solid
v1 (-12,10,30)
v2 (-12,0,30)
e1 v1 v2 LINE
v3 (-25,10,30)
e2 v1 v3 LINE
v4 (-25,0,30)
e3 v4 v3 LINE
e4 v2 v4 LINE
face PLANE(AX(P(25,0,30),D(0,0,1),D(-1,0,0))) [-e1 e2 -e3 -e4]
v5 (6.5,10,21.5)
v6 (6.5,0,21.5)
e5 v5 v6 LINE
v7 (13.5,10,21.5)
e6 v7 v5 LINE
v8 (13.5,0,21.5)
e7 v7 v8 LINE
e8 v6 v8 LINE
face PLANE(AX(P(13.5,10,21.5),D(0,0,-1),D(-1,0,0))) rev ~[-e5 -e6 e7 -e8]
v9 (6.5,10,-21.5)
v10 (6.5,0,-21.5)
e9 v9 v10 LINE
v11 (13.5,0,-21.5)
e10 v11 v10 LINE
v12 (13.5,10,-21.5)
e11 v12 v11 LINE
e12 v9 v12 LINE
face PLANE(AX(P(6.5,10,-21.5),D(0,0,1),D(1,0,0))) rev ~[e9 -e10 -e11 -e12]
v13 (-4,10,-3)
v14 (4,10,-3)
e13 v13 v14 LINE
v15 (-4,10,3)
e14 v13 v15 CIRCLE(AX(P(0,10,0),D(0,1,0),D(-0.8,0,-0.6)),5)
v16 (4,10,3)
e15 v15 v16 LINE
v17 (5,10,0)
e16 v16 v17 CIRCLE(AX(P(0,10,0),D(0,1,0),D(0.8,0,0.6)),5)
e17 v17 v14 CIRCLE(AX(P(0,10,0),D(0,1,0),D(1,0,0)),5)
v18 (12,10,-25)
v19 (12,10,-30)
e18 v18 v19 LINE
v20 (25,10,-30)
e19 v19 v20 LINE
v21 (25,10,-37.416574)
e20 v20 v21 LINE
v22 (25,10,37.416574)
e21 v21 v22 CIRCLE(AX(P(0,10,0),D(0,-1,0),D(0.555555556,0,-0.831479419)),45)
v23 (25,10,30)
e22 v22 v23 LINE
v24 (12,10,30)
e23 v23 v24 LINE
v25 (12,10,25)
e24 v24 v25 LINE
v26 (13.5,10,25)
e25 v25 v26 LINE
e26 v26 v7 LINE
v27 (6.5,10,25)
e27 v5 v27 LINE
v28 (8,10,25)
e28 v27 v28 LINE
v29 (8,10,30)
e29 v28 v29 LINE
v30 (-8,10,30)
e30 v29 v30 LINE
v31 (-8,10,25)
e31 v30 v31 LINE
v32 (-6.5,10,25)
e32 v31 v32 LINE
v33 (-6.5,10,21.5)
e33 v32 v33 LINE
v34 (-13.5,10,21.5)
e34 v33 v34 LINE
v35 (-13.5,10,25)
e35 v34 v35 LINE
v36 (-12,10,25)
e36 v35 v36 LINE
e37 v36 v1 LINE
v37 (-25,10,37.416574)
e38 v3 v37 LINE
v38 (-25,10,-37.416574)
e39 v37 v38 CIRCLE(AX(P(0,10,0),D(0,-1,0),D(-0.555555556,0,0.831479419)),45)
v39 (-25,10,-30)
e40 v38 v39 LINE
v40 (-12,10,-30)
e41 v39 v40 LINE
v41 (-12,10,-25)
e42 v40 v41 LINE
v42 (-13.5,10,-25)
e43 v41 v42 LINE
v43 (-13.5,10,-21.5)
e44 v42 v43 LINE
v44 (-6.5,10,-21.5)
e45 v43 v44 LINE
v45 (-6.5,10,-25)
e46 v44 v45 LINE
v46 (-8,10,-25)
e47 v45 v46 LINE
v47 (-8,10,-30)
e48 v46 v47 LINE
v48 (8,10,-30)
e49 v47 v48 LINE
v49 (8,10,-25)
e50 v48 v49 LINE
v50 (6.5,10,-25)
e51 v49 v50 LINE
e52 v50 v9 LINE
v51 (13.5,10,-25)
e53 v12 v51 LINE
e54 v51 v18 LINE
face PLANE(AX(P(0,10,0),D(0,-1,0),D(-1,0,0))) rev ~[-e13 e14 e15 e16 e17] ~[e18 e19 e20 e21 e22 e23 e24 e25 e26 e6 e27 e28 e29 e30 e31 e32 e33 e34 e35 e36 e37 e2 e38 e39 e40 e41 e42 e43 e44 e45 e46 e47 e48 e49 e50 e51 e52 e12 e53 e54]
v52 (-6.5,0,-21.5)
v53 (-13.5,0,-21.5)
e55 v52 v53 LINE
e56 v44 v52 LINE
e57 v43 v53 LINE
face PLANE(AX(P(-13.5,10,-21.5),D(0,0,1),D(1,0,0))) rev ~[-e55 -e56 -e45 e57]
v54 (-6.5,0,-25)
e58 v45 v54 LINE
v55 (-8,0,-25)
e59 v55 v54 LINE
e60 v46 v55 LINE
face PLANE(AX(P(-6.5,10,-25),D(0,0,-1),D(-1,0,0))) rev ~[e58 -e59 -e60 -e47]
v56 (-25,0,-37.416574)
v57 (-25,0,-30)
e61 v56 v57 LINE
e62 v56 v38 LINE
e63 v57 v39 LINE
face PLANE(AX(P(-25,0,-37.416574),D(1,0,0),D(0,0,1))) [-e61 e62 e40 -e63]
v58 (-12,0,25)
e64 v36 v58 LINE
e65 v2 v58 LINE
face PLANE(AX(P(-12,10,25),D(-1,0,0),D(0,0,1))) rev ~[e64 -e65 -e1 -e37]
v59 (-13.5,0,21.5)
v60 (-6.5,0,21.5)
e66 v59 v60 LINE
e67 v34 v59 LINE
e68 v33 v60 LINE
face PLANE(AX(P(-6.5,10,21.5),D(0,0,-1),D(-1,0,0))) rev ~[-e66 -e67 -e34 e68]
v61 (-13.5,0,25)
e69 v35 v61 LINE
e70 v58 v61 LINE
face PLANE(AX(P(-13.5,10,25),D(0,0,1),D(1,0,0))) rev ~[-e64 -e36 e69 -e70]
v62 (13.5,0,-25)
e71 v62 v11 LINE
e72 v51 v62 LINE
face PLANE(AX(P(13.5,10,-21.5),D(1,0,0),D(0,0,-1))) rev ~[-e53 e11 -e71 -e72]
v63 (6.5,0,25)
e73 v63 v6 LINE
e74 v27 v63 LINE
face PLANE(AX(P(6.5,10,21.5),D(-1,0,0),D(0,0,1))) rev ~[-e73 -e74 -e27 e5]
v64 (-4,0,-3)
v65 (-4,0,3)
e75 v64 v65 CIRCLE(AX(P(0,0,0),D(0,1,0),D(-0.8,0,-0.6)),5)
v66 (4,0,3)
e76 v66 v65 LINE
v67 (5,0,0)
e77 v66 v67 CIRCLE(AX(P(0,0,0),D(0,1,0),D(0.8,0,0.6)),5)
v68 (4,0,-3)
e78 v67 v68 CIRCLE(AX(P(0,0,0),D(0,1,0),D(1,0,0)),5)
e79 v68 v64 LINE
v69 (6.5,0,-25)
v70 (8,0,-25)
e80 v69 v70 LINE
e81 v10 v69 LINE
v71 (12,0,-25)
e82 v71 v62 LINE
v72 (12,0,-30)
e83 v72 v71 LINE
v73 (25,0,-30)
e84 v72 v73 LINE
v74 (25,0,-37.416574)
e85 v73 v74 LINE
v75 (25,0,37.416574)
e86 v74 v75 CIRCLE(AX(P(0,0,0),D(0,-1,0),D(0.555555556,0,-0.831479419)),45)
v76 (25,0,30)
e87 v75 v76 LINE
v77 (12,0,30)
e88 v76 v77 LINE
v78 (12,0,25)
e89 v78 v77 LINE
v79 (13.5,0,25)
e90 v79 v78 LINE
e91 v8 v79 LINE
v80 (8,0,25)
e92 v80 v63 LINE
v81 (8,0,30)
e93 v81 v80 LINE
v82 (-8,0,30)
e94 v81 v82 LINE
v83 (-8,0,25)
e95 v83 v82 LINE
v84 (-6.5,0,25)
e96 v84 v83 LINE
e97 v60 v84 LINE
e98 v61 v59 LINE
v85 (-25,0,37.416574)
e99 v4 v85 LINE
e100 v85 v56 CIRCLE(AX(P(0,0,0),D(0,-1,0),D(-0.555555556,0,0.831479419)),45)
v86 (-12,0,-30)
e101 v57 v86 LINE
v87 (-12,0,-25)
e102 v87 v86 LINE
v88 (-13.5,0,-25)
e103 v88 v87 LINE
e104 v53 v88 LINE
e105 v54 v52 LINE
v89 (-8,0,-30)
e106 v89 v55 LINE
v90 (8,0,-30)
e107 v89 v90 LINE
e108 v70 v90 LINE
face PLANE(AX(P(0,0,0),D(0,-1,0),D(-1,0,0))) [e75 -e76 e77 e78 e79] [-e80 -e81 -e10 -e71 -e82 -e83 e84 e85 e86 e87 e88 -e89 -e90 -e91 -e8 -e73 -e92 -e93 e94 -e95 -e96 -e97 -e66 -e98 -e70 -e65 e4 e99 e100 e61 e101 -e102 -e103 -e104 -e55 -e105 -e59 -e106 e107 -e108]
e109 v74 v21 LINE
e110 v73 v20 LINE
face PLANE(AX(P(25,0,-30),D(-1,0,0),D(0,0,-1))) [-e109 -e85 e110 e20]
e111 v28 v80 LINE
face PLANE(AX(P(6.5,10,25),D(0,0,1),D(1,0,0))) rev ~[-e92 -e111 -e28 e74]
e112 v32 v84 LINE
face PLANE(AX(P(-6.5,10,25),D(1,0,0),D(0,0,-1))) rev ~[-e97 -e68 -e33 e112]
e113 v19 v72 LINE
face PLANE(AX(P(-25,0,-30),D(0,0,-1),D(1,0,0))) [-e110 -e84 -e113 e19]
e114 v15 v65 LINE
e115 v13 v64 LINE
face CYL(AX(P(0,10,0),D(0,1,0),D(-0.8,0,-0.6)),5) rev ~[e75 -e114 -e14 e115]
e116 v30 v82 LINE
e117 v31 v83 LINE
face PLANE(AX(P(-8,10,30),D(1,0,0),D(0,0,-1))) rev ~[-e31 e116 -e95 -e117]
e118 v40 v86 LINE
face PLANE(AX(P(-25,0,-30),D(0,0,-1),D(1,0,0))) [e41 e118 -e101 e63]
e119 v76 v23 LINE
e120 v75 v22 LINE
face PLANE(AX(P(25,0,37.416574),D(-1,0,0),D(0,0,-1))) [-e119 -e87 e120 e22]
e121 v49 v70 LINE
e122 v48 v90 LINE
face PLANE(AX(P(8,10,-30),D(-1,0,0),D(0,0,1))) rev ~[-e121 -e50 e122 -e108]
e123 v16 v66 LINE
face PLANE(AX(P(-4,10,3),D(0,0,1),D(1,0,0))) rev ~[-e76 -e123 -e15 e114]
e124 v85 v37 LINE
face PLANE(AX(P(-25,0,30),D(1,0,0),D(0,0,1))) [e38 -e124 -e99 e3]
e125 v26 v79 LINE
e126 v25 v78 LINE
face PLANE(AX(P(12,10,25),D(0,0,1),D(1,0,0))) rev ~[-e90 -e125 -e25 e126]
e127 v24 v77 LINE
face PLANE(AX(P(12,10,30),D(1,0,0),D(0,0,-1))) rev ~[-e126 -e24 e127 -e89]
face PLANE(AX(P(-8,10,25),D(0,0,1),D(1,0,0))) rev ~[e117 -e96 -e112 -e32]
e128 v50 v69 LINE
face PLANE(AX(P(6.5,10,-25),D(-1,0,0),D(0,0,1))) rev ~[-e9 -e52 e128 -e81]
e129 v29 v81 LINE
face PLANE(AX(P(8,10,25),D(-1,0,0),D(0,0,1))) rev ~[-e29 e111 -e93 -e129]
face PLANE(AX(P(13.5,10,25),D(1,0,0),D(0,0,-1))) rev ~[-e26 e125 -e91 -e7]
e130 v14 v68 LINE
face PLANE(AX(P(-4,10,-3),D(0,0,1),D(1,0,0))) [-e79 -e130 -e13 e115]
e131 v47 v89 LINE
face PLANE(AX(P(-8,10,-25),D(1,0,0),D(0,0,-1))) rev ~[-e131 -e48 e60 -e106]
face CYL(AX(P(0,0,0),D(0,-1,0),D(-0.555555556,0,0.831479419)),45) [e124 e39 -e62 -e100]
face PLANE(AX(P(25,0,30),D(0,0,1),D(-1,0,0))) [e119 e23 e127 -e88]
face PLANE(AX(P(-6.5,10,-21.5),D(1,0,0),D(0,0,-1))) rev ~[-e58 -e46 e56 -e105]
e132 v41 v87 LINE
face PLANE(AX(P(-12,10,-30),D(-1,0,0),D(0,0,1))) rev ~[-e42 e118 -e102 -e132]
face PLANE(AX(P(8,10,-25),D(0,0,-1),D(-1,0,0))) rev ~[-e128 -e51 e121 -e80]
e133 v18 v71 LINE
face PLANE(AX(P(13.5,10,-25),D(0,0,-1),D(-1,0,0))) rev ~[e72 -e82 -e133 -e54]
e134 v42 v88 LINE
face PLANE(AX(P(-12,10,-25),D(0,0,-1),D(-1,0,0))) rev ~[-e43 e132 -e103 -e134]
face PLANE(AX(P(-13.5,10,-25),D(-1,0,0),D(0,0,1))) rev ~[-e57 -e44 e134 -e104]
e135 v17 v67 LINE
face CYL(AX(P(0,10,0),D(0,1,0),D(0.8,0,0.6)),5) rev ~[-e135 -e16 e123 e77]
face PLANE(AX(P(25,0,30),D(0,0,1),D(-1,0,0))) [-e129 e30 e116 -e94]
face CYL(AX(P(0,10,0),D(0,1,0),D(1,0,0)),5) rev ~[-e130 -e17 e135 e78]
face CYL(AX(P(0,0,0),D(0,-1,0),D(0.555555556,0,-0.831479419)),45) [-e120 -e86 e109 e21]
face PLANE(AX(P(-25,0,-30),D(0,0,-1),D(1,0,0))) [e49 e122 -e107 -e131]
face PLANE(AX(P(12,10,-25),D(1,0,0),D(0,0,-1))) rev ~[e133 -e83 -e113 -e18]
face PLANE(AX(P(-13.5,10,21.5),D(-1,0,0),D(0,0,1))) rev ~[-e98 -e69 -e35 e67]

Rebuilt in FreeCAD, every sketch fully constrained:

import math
import FreeCAD as App
import Part
import Sketcher

V = App.Vector


def add_polygon(sketch, points):
    """Adds a closed chain of lines whose ends are joined by coincident constraints."""
    first, n = sketch.GeometryCount, len(points)
    for a, b in zip(points, points[1:] + points[:1]):
        sketch.addGeometry(Part.LineSegment(App.Vector(*a, 0), App.Vector(*b, 0)), False)
    for i in range(n):
        sketch.addConstraint(Sketcher.Constraint("Coincident", first + i, 2, first + (i + 1) % n, 1))

doc = App.newDocument("Part")
params = doc.addObject("Spreadsheet::Sheet", "Params")
for row, (alias, value) in enumerate([
    ("sketch1_radius", "45 mm"),
    ("sketch1_width", "50 mm"),
    ("pad1_length", "10 mm"),
    ("sketch2_radius", "5 mm"),
    ("sketch2_width", "8 mm"),
    ("sketch3_width", "4 mm"),
    ("sketch3_width2", "7 mm"),
    ("sketch3_height", "5 mm"),
    ("sketch3_height2", "3.5 mm"),
], start=1):
    params.set(f"A{row}", alias)
    params.set(f"B{row}", "=" + value)
    params.setAlias(f"B{row}", alias)

body = doc.addObject("PartDesign::Body", "Body")

sketch1 = doc.addObject("Sketcher::SketchObject", "Sketch")
body.addObject(sketch1)
sketch1.AttachmentSupport = (doc.XZ_Plane, [""])
sketch1.MapMode = "FlatFace"
sketch1.addGeometry([
    Part.LineSegment(V(-25, -30, 0), V(-25, -37, 0)),
    Part.ArcOfCircle(Part.Circle(V(0, 0, 0), V(0, 0, 1), 45), math.radians(124), math.radians(236)),
    Part.LineSegment(V(-25, 37, 0), V(-25, 30, 0)),
    Part.LineSegment(V(-25, 30, 0), V(25, 30, 0)),
    Part.LineSegment(V(25, 30, 0), V(25, 37, 0)),
    Part.ArcOfCircle(Part.Circle(V(0, 0, 0), V(0, 0, 1), 45), math.radians(-56), math.radians(56)),
    Part.LineSegment(V(25, -37, 0), V(25, -30, 0)),
    Part.LineSegment(V(25, -30, 0), V(-25, -30, 0)),
], False)
sketch1.addConstraint([
    Sketcher.Constraint("Coincident", 0, 2, 1, 2),
    Sketcher.Constraint("Coincident", 1, 1, 2, 1),
    Sketcher.Constraint("Coincident", 2, 2, 3, 1),
    Sketcher.Constraint("Coincident", 3, 2, 4, 1),
    Sketcher.Constraint("Coincident", 4, 2, 5, 2),
    Sketcher.Constraint("Coincident", 5, 1, 6, 1),
    Sketcher.Constraint("Coincident", 6, 2, 7, 1),
    Sketcher.Constraint("Coincident", 7, 2, 0, 1),
    Sketcher.Constraint("Vertical", 0),
    Sketcher.Constraint("Vertical", 2),
    Sketcher.Constraint("Horizontal", 3),
    Sketcher.Constraint("Vertical", 4),
    Sketcher.Constraint("Vertical", 6),
    Sketcher.Constraint("Horizontal", 7),
    Sketcher.Constraint("Coincident", 1, 3, -1, 1),
    Sketcher.Constraint("Coincident", 5, 3, -1, 1),
    Sketcher.Constraint("Equal", 1, 5),
    Sketcher.Constraint("Symmetric", 2, 2, 6, 2, -1, 1),
    Sketcher.Constraint("Horizontal", 1, 1, 4, 2),
    Sketcher.Constraint("Horizontal", 0, 2, 5, 1),
    Sketcher.Constraint("Radius", 1, 45.0),
    Sketcher.Constraint("DistanceX", 3, 1, 3, 2, 50.0),
    Sketcher.Constraint("DistanceY", -1, 1, 2, 2, 30.0),
])
sketch1.setExpression("Constraints[20]", "Params.sketch1_radius")
sketch1.setExpression("Constraints[21]", "Params.sketch1_width")
pad1 = doc.addObject("PartDesign::Pad", "Pad")
body.addObject(pad1)
pad1.Profile = sketch1
pad1.setExpression("Length", "Params.pad1_length")
pad1.Reversed = True

sketch2 = doc.addObject("Sketcher::SketchObject", "Sketch001")
body.addObject(sketch2)
sketch2.AttachmentSupport = (doc.XZ_Plane, [""])
sketch2.MapMode = "FlatFace"
sketch2.AttachmentOffset = App.Placement(V(0, 0, -10), App.Rotation())
sketch2.addGeometry([
    Part.ArcOfCircle(Part.Circle(V(0, 0, 0), V(0, 0, 1), 5), math.radians(143), math.radians(217)),
    Part.LineSegment(V(-4, 3, 0), V(4, 3, 0)),
    Part.ArcOfCircle(Part.Circle(V(0, 0, 0), V(0, 0, 1), 5), math.radians(0), math.radians(37)),
    Part.ArcOfCircle(Part.Circle(V(0, 0, 0), V(0, 0, 1), 5), math.radians(-37), math.radians(0)),
    Part.LineSegment(V(4, -3, 0), V(-4, -3, 0)),
], False)
sketch2.addConstraint([
    Sketcher.Constraint("Coincident", 0, 1, 1, 1),
    Sketcher.Constraint("Coincident", 1, 2, 2, 2),
    Sketcher.Constraint("Tangent", 2, 1, 3, 2),
    Sketcher.Constraint("Coincident", 3, 1, 4, 1),
    Sketcher.Constraint("Coincident", 4, 2, 0, 2),
    Sketcher.Constraint("Horizontal", 1),
    Sketcher.Constraint("Horizontal", 4),
    Sketcher.Constraint("Coincident", 0, 3, -1, 1),
    Sketcher.Constraint("Coincident", 2, 3, -1, 1),
    Sketcher.Constraint("Equal", 0, 2),
    Sketcher.Constraint("Equal", 2, 3),
    Sketcher.Constraint("PointOnObject", 2, 1, -1),
    Sketcher.Constraint("Vertical", 1, 2, 3, 1),
    Sketcher.Constraint("Radius", 0, 5.0),
    Sketcher.Constraint("DistanceX", 1, 1, 1, 2, 8.0),
])
sketch2.setExpression("Constraints[13]", "Params.sketch2_radius")
sketch2.setExpression("Constraints[14]", "Params.sketch2_width")
pocket1 = doc.addObject("PartDesign::Pocket", "Pocket")
body.addObject(pocket1)
pocket1.Profile = sketch2
pocket1.Type = "ThroughAll"
pocket1.Reversed = True

sketch3 = doc.addObject("Sketcher::SketchObject", "Sketch002")
body.addObject(sketch3)
sketch3.AttachmentSupport = (doc.XZ_Plane, [""])
sketch3.MapMode = "FlatFace"
sketch3.AttachmentOffset = App.Placement(V(0, 0, -10), App.Rotation())
add_polygon(sketch3, [(8, 25), (8, 30), (12, 30), (12, 25), (13.5, 25), (13.5, 21.5), (6.5, 21.5), (6.5, 25)])
add_polygon(sketch3, [(-13.5, -21.5), (-6.5, -21.5), (-6.5, -25), (-8, -25), (-8, -30), (-12, -30), (-12, -25), (-13.5, -25)])
add_polygon(sketch3, [(6.5, -21.5), (13.5, -21.5), (13.5, -25), (12, -25), (12, -30), (8, -30), (8, -25), (6.5, -25)])
add_polygon(sketch3, [(-8, 25), (-6.5, 25), (-6.5, 21.5), (-13.5, 21.5), (-13.5, 25), (-12, 25), (-12, 30), (-8, 30)])
sketch3.addConstraint([
    Sketcher.Constraint("Vertical", 0),
    Sketcher.Constraint("Horizontal", 1),
    Sketcher.Constraint("Vertical", 2),
    Sketcher.Constraint("Horizontal", 3),
    Sketcher.Constraint("Vertical", 4),
    Sketcher.Constraint("Horizontal", 5),
    Sketcher.Constraint("Vertical", 6),
    Sketcher.Constraint("Horizontal", 7),
    Sketcher.Constraint("Horizontal", 8),
    Sketcher.Constraint("Vertical", 9),
    Sketcher.Constraint("Horizontal", 10),
    Sketcher.Constraint("Vertical", 11),
    Sketcher.Constraint("Horizontal", 12),
    Sketcher.Constraint("Vertical", 13),
    Sketcher.Constraint("Horizontal", 14),
    Sketcher.Constraint("Vertical", 15),
    Sketcher.Constraint("Horizontal", 16),
    Sketcher.Constraint("Vertical", 17),
    Sketcher.Constraint("Horizontal", 18),
    Sketcher.Constraint("Vertical", 19),
    Sketcher.Constraint("Horizontal", 20),
    Sketcher.Constraint("Vertical", 21),
    Sketcher.Constraint("Horizontal", 22),
    Sketcher.Constraint("Vertical", 23),
    Sketcher.Constraint("Horizontal", 24),
    Sketcher.Constraint("Vertical", 25),
    Sketcher.Constraint("Horizontal", 26),
    Sketcher.Constraint("Vertical", 27),
    Sketcher.Constraint("Horizontal", 28),
    Sketcher.Constraint("Vertical", 29),
    Sketcher.Constraint("Horizontal", 30),
    Sketcher.Constraint("Vertical", 31),
    Sketcher.Constraint("Symmetric", 5, 2, 8, 2, -1, 1),
    Sketcher.Constraint("Symmetric", 7, 2, 10, 2, -1, 1),
    Sketcher.Constraint("Symmetric", 1, 2, 12, 2, -1, 1),
    Sketcher.Constraint("Symmetric", 3, 2, 14, 2, -1, 1),
    Sketcher.Constraint("Symmetric", 22, 2, 24, 2, -1, 1),
    Sketcher.Constraint("Symmetric", 16, 2, 26, 2, -1, 1),
    Sketcher.Constraint("Symmetric", 18, 2, 28, 2, -1, 1),
    Sketcher.Constraint("Symmetric", 20, 2, 30, 2, -1, 1),
    Sketcher.Constraint("Symmetric", 15, 2, 16, 2, -2),
    Sketcher.Constraint("Symmetric", 13, 2, 18, 2, -2),
    Sketcher.Constraint("Symmetric", 11, 2, 20, 2, -2),
    Sketcher.Constraint("Symmetric", 9, 2, 22, 2, -2),
    Sketcher.Constraint("Horizontal", 3, 2, 6, 2),
    Sketcher.Constraint("Equal", 3, 7),
    Sketcher.Constraint("DistanceX", 1, 1, 1, 2, 4.0),
    Sketcher.Constraint("DistanceX", 5, 2, 5, 1, 7.0),
    Sketcher.Constraint("DistanceY", 0, 1, 0, 2, 5.0),
    Sketcher.Constraint("DistanceY", 4, 2, 4, 1, 3.5),
    Sketcher.Constraint("DistanceX", -1, 1, 0, 2, 8.0),
    Sketcher.Constraint("DistanceY", -1, 1, 0, 2, 30.0),
])
sketch3.setExpression("Constraints[78]", "Params.sketch3_width")
sketch3.setExpression("Constraints[79]", "Params.sketch3_width2")
sketch3.setExpression("Constraints[80]", "Params.sketch3_height")
sketch3.setExpression("Constraints[81]", "Params.sketch3_height2")
pocket2 = doc.addObject("PartDesign::Pocket", "Pocket001")
body.addObject(pocket2)
pocket2.Profile = sketch3
pocket2.Type = "ThroughAll"
pocket2.Reversed = True

doc.recompute()
